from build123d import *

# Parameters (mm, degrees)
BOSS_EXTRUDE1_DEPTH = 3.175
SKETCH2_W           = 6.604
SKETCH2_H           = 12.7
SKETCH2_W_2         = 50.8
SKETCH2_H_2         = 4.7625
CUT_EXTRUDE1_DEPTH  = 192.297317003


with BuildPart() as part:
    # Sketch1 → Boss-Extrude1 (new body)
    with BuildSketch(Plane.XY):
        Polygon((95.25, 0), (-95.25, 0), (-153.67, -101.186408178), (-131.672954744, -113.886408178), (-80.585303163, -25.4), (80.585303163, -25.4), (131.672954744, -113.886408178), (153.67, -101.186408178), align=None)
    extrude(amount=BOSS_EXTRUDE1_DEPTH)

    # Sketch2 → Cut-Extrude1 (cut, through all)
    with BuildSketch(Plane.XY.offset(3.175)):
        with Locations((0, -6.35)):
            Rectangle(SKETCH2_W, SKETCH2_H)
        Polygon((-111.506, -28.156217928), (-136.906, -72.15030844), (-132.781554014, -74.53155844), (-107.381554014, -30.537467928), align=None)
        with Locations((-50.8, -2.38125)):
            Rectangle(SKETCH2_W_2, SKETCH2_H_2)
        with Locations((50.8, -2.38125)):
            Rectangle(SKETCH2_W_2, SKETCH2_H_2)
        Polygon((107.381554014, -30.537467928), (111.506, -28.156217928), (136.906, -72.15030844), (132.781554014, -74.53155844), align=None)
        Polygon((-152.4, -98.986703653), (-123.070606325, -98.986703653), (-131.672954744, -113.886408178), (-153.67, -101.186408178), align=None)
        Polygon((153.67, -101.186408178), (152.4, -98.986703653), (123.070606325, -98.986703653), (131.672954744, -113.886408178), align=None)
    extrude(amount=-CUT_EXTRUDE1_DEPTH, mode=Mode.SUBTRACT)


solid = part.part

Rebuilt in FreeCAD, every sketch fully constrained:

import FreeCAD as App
import Part
import Sketcher

V = App.Vector
Q = App.Units.Quantity

doc = App.newDocument("Part")
body = doc.addObject("PartDesign::Body", "Body")

sketch1 = body.newObject("Sketcher::SketchObject", "Sketch")
sketch1.AttachmentSupport = (doc.getObject("XY_Plane"), [""])
sketch1.MapMode = "FlatFace"
sketch1.addGeometry(Part.LineSegment(V(95, 0, 0), V(-95, 0, 0)), False)
sketch1.addGeometry(Part.LineSegment(V(-95, 0, 0), V(-154, -101, 0)), False)
sketch1.addGeometry(Part.LineSegment(V(-154, -101, 0), V(-132, -114, 0)), False)
sketch1.addGeometry(Part.LineSegment(V(-132, -114, 0), V(-81, -25, 0)), False)
sketch1.addGeometry(Part.LineSegment(V(-81, -25, 0), V(81, -25, 0)), False)
sketch1.addGeometry(Part.LineSegment(V(81, -25, 0), V(132, -114, 0)), False)
sketch1.addGeometry(Part.LineSegment(V(132, -114, 0), V(154, -101, 0)), False)
sketch1.addGeometry(Part.LineSegment(V(154, -101, 0), V(95, 0, 0)), False)
sketch1.addConstraint(Sketcher.Constraint("Coincident", 0, 2, 1, 1))
sketch1.addConstraint(Sketcher.Constraint("Coincident", 1, 2, 2, 1))
sketch1.addConstraint(Sketcher.Constraint("Coincident", 2, 2, 3, 1))
sketch1.addConstraint(Sketcher.Constraint("Coincident", 3, 2, 4, 1))
sketch1.addConstraint(Sketcher.Constraint("Coincident", 4, 2, 5, 1))
sketch1.addConstraint(Sketcher.Constraint("Coincident", 5, 2, 6, 1))
sketch1.addConstraint(Sketcher.Constraint("Coincident", 6, 2, 7, 1))
sketch1.addConstraint(Sketcher.Constraint("Coincident", 7, 2, 0, 1))
sketch1.addConstraint(Sketcher.Constraint("Horizontal", 0))
sketch1.addConstraint(Sketcher.Constraint("Horizontal", 4))
sketch1.addConstraint(Sketcher.Constraint("Symmetric", 0, 2, 7, 2, -1, 1))
sketch1.addConstraint(Sketcher.Constraint("Symmetric", 2, 2, 5, 2, -2))
sketch1.addConstraint(Sketcher.Constraint("Symmetric", 1, 2, 6, 2, -2))
sketch1.addConstraint(Sketcher.Constraint("Perpendicular", 1, 2))
sketch1.addConstraint(Sketcher.Constraint("Perpendicular", 2, 3))
sketch1.addConstraint(Sketcher.Constraint("Perpendicular", 5, 6))
sketch1.addConstraint(Sketcher.Constraint("Distance", 2, Q("1 in")))
sketch1.addConstraint(Sketcher.Constraint("DistanceX", 0, 2, 0, 1, Q("7.5 in")))
sketch1.addConstraint(Sketcher.Constraint("DistanceY", 3, 2, -1, 1, Q("1 in")))
sketch1.addConstraint(Sketcher.Constraint("Angle", 1, Q("-120 deg")))
sketch1.addConstraint(Sketcher.Constraint("Distance", 1, Q("4.6 in")))
pad1 = body.newObject("PartDesign::Pad", "Pad")
pad1.Profile = sketch1
pad1.Length = Q("0.125 in")

sketch2 = body.newObject("Sketcher::SketchObject", "Sketch001")
sketch2.AttachmentSupport = (doc.getObject("XY_Plane"), [""])
sketch2.MapMode = "FlatFace"
sketch2.AttachmentOffset = App.Placement(V(0, 0, 0.125 * 25.4), App.Rotation())
sketch2.addGeometry(Part.LineSegment(V(-3.3, 0, 0), V(-3.3, -12.7, 0)), False)
sketch2.addGeometry(Part.LineSegment(V(-3.3, -12.7, 0), V(3.3, -12.7, 0)), False)
sketch2.addGeometry(Part.LineSegment(V(3.3, -12.7, 0), V(3.3, 0, 0)), False)
sketch2.addGeometry(Part.LineSegment(V(3.3, 0, 0), V(-3.3, 0, 0)), False)
sketch2.addGeometry(Part.LineSegment(V(-111.5, -28.2, 0), V(-136.9, -72.2, 0)), False)
sketch2.addGeometry(Part.LineSegment(V(-136.9, -72.2, 0), V(-132.8, -74.5, 0)), False)
sketch2.addGeometry(Part.LineSegment(V(-132.8, -74.5, 0), V(-107.4, -30.5, 0)), False)
sketch2.addGeometry(Part.LineSegment(V(-107.4, -30.5, 0), V(-111.5, -28.2, 0)), False)
sketch2.addGeometry(Part.LineSegment(V(-76.2, 0, 0), V(-76.2, -4.8, 0)), False)
sketch2.addGeometry(Part.LineSegment(V(-76.2, -4.8, 0), V(-25.4, -4.8, 0)), False)
sketch2.addGeometry(Part.LineSegment(V(-25.4, -4.8, 0), V(-25.4, 0, 0)), False)
sketch2.addGeometry(Part.LineSegment(V(-25.4, 0, 0), V(-76.2, 0, 0)), False)
sketch2.addGeometry(Part.LineSegment(V(25.4, 0, 0), V(25.4, -4.8, 0)), False)
sketch2.addGeometry(Part.LineSegment(V(25.4, -4.8, 0), V(76.2, -4.8, 0)), False)
sketch2.addGeometry(Part.LineSegment(V(76.2, -4.8, 0), V(76.2, 0, 0)), False)
sketch2.addGeometry(Part.LineSegment(V(76.2, 0, 0), V(25.4, 0, 0)), False)
sketch2.addGeometry(Part.LineSegment(V(111.5, -28.2, 0), V(107.4, -30.5, 0)), False)
sketch2.addGeometry(Part.LineSegment(V(107.4, -30.5, 0), V(132.8, -74.5, 0)), False)
sketch2.addGeometry(Part.LineSegment(V(132.8, -74.5, 0), V(136.9, -72.2, 0)), False)
sketch2.addGeometry(Part.LineSegment(V(136.9, -72.2, 0), V(111.5, -28.2, 0)), False)
sketch2.addGeometry(Part.LineSegment(V(-123.1, -99, 0), V(-152.4, -99, 0)), False)
sketch2.addGeometry(Part.LineSegment(V(-152.4, -99, 0), V(-153.7, -101.2, 0)), False)
sketch2.addGeometry(Part.LineSegment(V(-153.7, -101.2, 0), V(-131.7, -113.9, 0)), False)
sketch2.addGeometry(Part.LineSegment(V(-131.7, -113.9, 0), V(-123.1, -99, 0)), False)
sketch2.addGeometry(Part.LineSegment(V(153.7, -101.2, 0), V(152.4, -99, 0)), False)
sketch2.addGeometry(Part.LineSegment(V(152.4, -99, 0), V(123.1, -99, 0)), False)
sketch2.addGeometry(Part.LineSegment(V(123.1, -99, 0), V(131.7, -113.9, 0)), False)
sketch2.addGeometry(Part.LineSegment(V(131.7, -113.9, 0), V(153.7, -101.2, 0)), False)
sketch2.addConstraint(Sketcher.Constraint("Coincident", 0, 2, 1, 1))
sketch2.addConstraint(Sketcher.Constraint("Coincident", 1, 2, 2, 1))
sketch2.addConstraint(Sketcher.Constraint("Coincident", 2, 2, 3, 1))
sketch2.addConstraint(Sketcher.Constraint("Coincident", 3, 2, 0, 1))
sketch2.addConstraint(Sketcher.Constraint("Coincident", 4, 2, 5, 1))
sketch2.addConstraint(Sketcher.Constraint("Coincident", 5, 2, 6, 1))
sketch2.addConstraint(Sketcher.Constraint("Coincident", 6, 2, 7, 1))
sketch2.addConstraint(Sketcher.Constraint("Coincident", 7, 2, 4, 1))
sketch2.addConstraint(Sketcher.Constraint("Coincident", 8, 2, 9, 1))
sketch2.addConstraint(Sketcher.Constraint("Coincident", 9, 2, 10, 1))
sketch2.addConstraint(Sketcher.Constraint("Coincident", 10, 2, 11, 1))
sketch2.addConstraint(Sketcher.Constraint("Coincident", 11, 2, 8, 1))
sketch2.addConstraint(Sketcher.Constraint("Coincident", 12, 2, 13, 1))
sketch2.addConstraint(Sketcher.Constraint("Coincident", 13, 2, 14, 1))
sketch2.addConstraint(Sketcher.Constraint("Coincident", 14, 2, 15, 1))
sketch2.addConstraint(Sketcher.Constraint("Coincident", 15, 2, 12, 1))
sketch2.addConstraint(Sketcher.Constraint("Coincident", 16, 2, 17, 1))
sketch2.addConstraint(Sketcher.Constraint("Coincident", 17, 2, 18, 1))
sketch2.addConstraint(Sketcher.Constraint("Coincident", 18, 2, 19, 1))
sketch2.addConstraint(Sketcher.Constraint("Coincident", 19, 2, 16, 1))
sketch2.addConstraint(Sketcher.Constraint("Coincident", 20, 2, 21, 1))
sketch2.addConstraint(Sketcher.Constraint("Coincident", 21, 2, 22, 1))
sketch2.addConstraint(Sketcher.Constraint("Coincident", 22, 2, 23, 1))
sketch2.addConstraint(Sketcher.Constraint("Coincident", 23, 2, 20, 1))
sketch2.addConstraint(Sketcher.Constraint("Coincident", 24, 2, 25, 1))
sketch2.addConstraint(Sketcher.Constraint("Coincident", 25, 2, 26, 1))
sketch2.addConstraint(Sketcher.Constraint("Coincident", 26, 2, 27, 1))
sketch2.addConstraint(Sketcher.Constraint("Coincident", 27, 2, 24, 1))
sketch2.addConstraint(Sketcher.Constraint("Vertical", 0))
sketch2.addConstraint(Sketcher.Constraint("Horizontal", 1))
sketch2.addConstraint(Sketcher.Constraint("Vertical", 2))
sketch2.addConstraint(Sketcher.Constraint("Horizontal", 3))
sketch2.addConstraint(Sketcher.Constraint("Vertical", 8))
sketch2.addConstraint(Sketcher.Constraint("Horizontal", 9))
sketch2.addConstraint(Sketcher.Constraint("Vertical", 10))
sketch2.addConstraint(Sketcher.Constraint("Horizontal", 11))
sketch2.addConstraint(Sketcher.Constraint("Vertical", 12))
sketch2.addConstraint(Sketcher.Constraint("Horizontal", 13))
sketch2.addConstraint(Sketcher.Constraint("Vertical", 14))
sketch2.addConstraint(Sketcher.Constraint("Horizontal", 15))
sketch2.addConstraint(Sketcher.Constraint("Horizontal", 20))
sketch2.addConstraint(Sketcher.Constraint("Horizontal", 25))
sketch2.addConstraint(Sketcher.Constraint("Symmetric", 2, 2, 3, 2, -1, 1))
sketch2.addConstraint(Sketcher.Constraint("Symmetric", 11, 2, 14, 2, -1, 1))
sketch2.addConstraint(Sketcher.Constraint("Symmetric", 9, 2, 12, 2, -2))
sketch2.addConstraint(Sketcher.Constraint("Symmetric", 6, 2, 16, 2, -2))
sketch2.addConstraint(Sketcher.Constraint("Symmetric", 5, 2, 17, 2, -2))
sketch2.addConstraint(Sketcher.Constraint("Symmetric", 4, 2, 18, 2, -2))
sketch2.addConstraint(Sketcher.Constraint("Symmetric", 7, 2, 19, 2, -2))
sketch2.addConstraint(Sketcher.Constraint("Symmetric", 20, 2, 24, 2, -2))
sketch2.addConstraint(Sketcher.Constraint("Symmetric", 22, 2, 26, 2, -2))
sketch2.addConstraint(Sketcher.Constraint("Symmetric", 21, 2, 27, 2, -2))
sketch2.addConstraint(Sketcher.Constraint("PointOnObject", 10, 2, -1))
sketch2.addConstraint(Sketcher.Constraint("Perpendicular", 4, 5))
sketch2.addConstraint(Sketcher.Constraint("Perpendicular", 5, 6))
sketch2.addConstraint(Sketcher.Constraint("Perpendicular", 6, 7))
sketch2.addConstraint(Sketcher.Constraint("Perpendicular", 7, 21))
sketch2.addConstraint(Sketcher.Constraint("Perpendicular", 21, 22))
sketch2.addConstraint(Sketcher.Constraint("Perpendicular", 22, 23))
sketch2.addConstraint(Sketcher.Constraint("Parallel", 24, 26))
sketch2.addConstraint(Sketcher.Constraint("DistanceX", 9, 1, 9, 2, Q("2 in")))
sketch2.addConstraint(Sketcher.Constraint("Distance", 4, Q("2 in")))
sketch2.addConstraint(Sketcher.Constraint("Distance", 22, Q("1 in")))
sketch2.addConstraint(Sketcher.Constraint("DistanceY", 0, 2, 0, 1, Q("0.5 in")))
sketch2.addConstraint(Sketcher.Constraint("DistanceX", 8, 2, -1, 1, Q("3 in")))
sketch2.addConstraint(Sketcher.Constraint("DistanceX", 20, 2, -1, 1, Q("6 in")))
sketch2.addConstraint(Sketcher.Constraint("Angle", 4, Q("-120 deg")))
sketch2.addConstraint(Sketcher.Constraint("Distance", 21, Q("0.1 in")))
sketch2.addConstraint(Sketcher.Constraint("DistanceX", 1, 1, 1, 2, Q("0.26 in")))
sketch2.addConstraint(Sketcher.Constraint("DistanceY", 8, 2, 8, 1, Q("0.1875 in")))
sketch2.addConstraint(Sketcher.Constraint("DistanceX", 4, 2, -1, 1, Q("5.39 in")))
sketch2.addConstraint(Sketcher.Constraint("Distance", 5, Q("0.1875 in")))
sketch2.addConstraint(Sketcher.Constraint("DistanceY", 21, 2, 4, 2, 29.0361))
sketch2.addConstraint(Sketcher.Constraint("DistanceY", 4, 2, -1, 1, 72.150308))
pocket1 = body.newObject("PartDesign::Pocket", "Pocket")
pocket1.Profile = sketch2
pocket1.Type = "ThroughAll"

doc.recompute()
